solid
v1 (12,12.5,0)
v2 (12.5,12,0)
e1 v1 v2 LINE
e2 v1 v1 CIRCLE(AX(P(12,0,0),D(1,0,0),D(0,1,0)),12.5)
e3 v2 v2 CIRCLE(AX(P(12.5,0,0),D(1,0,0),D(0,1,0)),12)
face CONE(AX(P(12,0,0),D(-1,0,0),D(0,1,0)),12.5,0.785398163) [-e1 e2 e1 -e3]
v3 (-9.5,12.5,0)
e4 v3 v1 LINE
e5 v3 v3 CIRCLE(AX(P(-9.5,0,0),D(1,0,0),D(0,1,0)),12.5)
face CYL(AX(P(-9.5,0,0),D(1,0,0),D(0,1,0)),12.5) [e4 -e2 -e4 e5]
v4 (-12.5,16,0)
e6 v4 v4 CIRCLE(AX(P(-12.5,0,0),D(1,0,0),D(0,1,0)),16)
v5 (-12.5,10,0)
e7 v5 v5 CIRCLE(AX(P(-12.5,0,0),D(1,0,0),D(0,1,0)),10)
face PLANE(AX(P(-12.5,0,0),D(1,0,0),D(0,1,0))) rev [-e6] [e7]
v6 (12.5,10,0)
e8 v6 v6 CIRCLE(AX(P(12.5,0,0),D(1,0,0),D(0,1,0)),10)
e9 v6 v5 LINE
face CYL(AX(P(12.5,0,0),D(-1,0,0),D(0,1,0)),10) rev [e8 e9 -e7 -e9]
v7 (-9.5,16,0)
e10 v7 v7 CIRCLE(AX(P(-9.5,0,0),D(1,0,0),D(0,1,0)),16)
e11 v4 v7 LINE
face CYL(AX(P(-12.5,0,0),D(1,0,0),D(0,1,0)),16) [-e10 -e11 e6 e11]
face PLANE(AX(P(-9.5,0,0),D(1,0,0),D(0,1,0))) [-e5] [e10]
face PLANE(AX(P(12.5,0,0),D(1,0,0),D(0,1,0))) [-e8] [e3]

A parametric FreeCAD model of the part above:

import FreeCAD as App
import Part
import Sketcher

V = App.Vector
Q = App.Units.Quantity


def edges_at(feature, points):
    """Names of the edges that pass closest to the given points."""
    edges = feature.Shape.Edges
    near = lambda p: min(range(len(edges)), key=lambda i: edges[i].distToShape(Part.Vertex(*p))[0])
    return sorted({f"Edge{near(p) + 1}" for p in points})

doc = App.newDocument("Part")
params = doc.addObject("Spreadsheet::Sheet", "Params")
for row, (alias, value) in enumerate([
    ("sketch1_width", "25 mm"),
    ("sketch1_width2", "22 mm"),
    ("sketch1_height", "6 mm"),
    ("sketch1_height2", "2.5 mm"),
    ("revolution_angle", "360 deg"),
    ("chamfer_size", "0.5 mm"),
], start=1):
    params.set(f"A{row}", alias)
    params.set(f"B{row}", "=" + value)
    params.setAlias(f"B{row}", alias)

body = doc.addObject("PartDesign::Body", "Body")

# Sketch on XY plane
sketch1 = doc.addObject("Sketcher::SketchObject", "Sketch")
body.addObject(sketch1)
sketch1.AttachmentSupport = (doc.XY_Plane, [""])
sketch1.MapMode = "FlatFace"
sketch1.addGeometry([
    Part.LineSegment(V(-12.5, 16, 0), V(-12.5, 10, 0)),  # 0
    Part.LineSegment(V(-12.5, 10, 0), V(12.5, 10, 0)),  # 1
    Part.LineSegment(V(12.5, 10, 0), V(12.5, 12.5, 0)),  # 2
    Part.LineSegment(V(12.5, 12.5, 0), V(-9.5, 12.5, 0)),  # 3
    Part.LineSegment(V(-9.5, 12.5, 0), V(-9.5, 16, 0)),  # 4
    Part.LineSegment(V(-9.5, 16, 0), V(-12.5, 16, 0)),  # 5
], False)
sketch1.addConstraint([
    Sketcher.Constraint("Coincident", 0, 2, 1, 1),
    Sketcher.Constraint("Coincident", 1, 2, 2, 1),
    Sketcher.Constraint("Coincident", 2, 2, 3, 1),
    Sketcher.Constraint("Coincident", 3, 2, 4, 1),
    Sketcher.Constraint("Coincident", 4, 2, 5, 1),
    Sketcher.Constraint("Coincident", 5, 2, 0, 1),
    Sketcher.Constraint("Vertical", 0),
    Sketcher.Constraint("Horizontal", 1),
    Sketcher.Constraint("Vertical", 2),
    Sketcher.Constraint("Horizontal", 3),
    Sketcher.Constraint("Vertical", 4),
    Sketcher.Constraint("Horizontal", 5),
    Sketcher.Constraint("DistanceX", 1, 1, 1, 2, Q("25 mm")),
    Sketcher.Constraint("DistanceX", 3, 2, 3, 1, Q("22 mm")),
    Sketcher.Constraint("DistanceY", 0, 2, 0, 1, Q("6 mm")),
    Sketcher.Constraint("DistanceY", 2, 1, 2, 2, Q("2.5 mm")),
    Sketcher.Constraint("DistanceY", -1, 1, 0, 2, Q("10 mm")),
    Sketcher.Constraint("DistanceX", 0, 2, -1, 1, Q("12.5 mm")),
])
sketch1.setExpression("Constraints[12]", "Params.sketch1_width")
sketch1.setExpression("Constraints[13]", "Params.sketch1_width2")
sketch1.setExpression("Constraints[14]", "Params.sketch1_height")
sketch1.setExpression("Constraints[15]", "Params.sketch1_height2")
revolution = doc.addObject("PartDesign::Revolution", "Revolution")
body.addObject(revolution)
revolution.Profile = sketch1
revolution.ReferenceAxis = (sketch1, ["H_Axis"])
revolution.setExpression("Angle", "Params.revolution_angle")
doc.recompute()

chamfer = doc.addObject("PartDesign::Chamfer", "Chamfer")
body.addObject(chamfer)
chamfer.Base = (revolution, edges_at(revolution, [(12.5, -12.5, 0)]))
chamfer.setExpression("Size", "Params.chamfer_size")

doc.recompute()
